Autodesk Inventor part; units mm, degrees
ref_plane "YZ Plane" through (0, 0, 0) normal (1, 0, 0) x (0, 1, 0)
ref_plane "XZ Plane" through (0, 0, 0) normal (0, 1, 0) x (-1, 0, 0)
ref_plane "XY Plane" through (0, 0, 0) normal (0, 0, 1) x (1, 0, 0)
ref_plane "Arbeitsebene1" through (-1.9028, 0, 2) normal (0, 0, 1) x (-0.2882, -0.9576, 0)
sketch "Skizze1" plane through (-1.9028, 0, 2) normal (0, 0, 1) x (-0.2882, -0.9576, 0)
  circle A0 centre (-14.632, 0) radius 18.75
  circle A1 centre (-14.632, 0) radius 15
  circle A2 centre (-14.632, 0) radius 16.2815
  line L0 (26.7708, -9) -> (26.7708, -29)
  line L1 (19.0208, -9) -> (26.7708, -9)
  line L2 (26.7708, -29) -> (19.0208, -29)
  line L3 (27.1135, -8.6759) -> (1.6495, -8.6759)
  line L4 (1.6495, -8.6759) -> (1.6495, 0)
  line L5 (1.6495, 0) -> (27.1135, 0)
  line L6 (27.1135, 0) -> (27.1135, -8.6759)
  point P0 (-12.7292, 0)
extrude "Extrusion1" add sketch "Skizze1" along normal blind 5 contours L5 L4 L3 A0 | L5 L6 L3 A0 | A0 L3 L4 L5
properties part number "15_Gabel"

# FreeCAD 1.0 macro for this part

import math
import FreeCAD as App
import Part
import Sketcher

V = App.Vector
Q = App.Units.Quantity

doc = App.newDocument("Part")
body = doc.addObject("PartDesign::Body", "Body")

# Sketch on XY plane
sketch1 = doc.addObject("Sketcher::SketchObject", "Sketch")
body.addObject(sketch1)
sketch1.AttachmentSupport = (doc.XY_Plane, [""])
sketch1.MapMode = "FlatFace"
sketch1.AttachmentOffset = App.Placement(V(0, 0, 2), App.Rotation())
sketch1.addGeometry(Part.ArcOfCircle(Part.Circle(V(2.314022, 14.011204, 0), V(0, 0, 1), 18.75), math.radians(-106.749732), math.radians(225.687849)), False)
sketch1.addGeometry(Part.LineSegment(V(-10.78411, 0.594743, 0), V(-18.024493, -23.462825, 0)), False)
sketch1.addGeometry(Part.LineSegment(V(-18.024493, -23.462825, 0), V(-9.716688, -25.963148, 0)), False)
sketch1.addGeometry(Part.LineSegment(V(-9.716688, -25.963148, 0), V(-3.089574, -3.943284, 0)), False)
sketch1.addGeometry(Part.Circle(V(2.314022, 14.011204, 0), V(0, 0, 1), 16.2815), False)
sketch1.addConstraint(Sketcher.Constraint("Coincident", 0, 2, 1, 1))
sketch1.addConstraint(Sketcher.Constraint("Coincident", 1, 2, 2, 1))
sketch1.addConstraint(Sketcher.Constraint("Coincident", 2, 2, 3, 1))
sketch1.addConstraint(Sketcher.Constraint("Coincident", 3, 2, 0, 1))
sketch1.addConstraint(Sketcher.Constraint("Coincident", 4, 3, 0, 3))
sketch1.addConstraint(Sketcher.Constraint("Perpendicular", 1, 2))
sketch1.addConstraint(Sketcher.Constraint("Perpendicular", 2, 3))
sketch1.addConstraint(Sketcher.Constraint("Radius", 0, Q("18.75 mm")))
sketch1.addConstraint(Sketcher.Constraint("Diameter", 4, Q("32.563 mm")))
sketch1.addConstraint(Sketcher.Constraint("Angle", 1, Q("-106.7497 deg")))
sketch1.addConstraint(Sketcher.Constraint("Distance", 2, Q("8.676 mm")))
sketch1.addConstraint(Sketcher.Constraint("DistanceX", -1, 1, 0, 3, Q("2.314 mm")))
sketch1.addConstraint(Sketcher.Constraint("DistanceX", 0, 2, -1, 1, Q("10.784 mm")))
sketch1.addConstraint(Sketcher.Constraint("DistanceY", 1, 2, 0, 3, Q("37.474 mm")))
sketch1.addConstraint(Sketcher.Constraint("DistanceY", -1, 1, 0, 3, Q("14.0112 mm")))
pad1 = doc.addObject("PartDesign::Pad", "Pad")
body.addObject(pad1)
pad1.Profile = sketch1
pad1.Length = 5

doc.recompute()
